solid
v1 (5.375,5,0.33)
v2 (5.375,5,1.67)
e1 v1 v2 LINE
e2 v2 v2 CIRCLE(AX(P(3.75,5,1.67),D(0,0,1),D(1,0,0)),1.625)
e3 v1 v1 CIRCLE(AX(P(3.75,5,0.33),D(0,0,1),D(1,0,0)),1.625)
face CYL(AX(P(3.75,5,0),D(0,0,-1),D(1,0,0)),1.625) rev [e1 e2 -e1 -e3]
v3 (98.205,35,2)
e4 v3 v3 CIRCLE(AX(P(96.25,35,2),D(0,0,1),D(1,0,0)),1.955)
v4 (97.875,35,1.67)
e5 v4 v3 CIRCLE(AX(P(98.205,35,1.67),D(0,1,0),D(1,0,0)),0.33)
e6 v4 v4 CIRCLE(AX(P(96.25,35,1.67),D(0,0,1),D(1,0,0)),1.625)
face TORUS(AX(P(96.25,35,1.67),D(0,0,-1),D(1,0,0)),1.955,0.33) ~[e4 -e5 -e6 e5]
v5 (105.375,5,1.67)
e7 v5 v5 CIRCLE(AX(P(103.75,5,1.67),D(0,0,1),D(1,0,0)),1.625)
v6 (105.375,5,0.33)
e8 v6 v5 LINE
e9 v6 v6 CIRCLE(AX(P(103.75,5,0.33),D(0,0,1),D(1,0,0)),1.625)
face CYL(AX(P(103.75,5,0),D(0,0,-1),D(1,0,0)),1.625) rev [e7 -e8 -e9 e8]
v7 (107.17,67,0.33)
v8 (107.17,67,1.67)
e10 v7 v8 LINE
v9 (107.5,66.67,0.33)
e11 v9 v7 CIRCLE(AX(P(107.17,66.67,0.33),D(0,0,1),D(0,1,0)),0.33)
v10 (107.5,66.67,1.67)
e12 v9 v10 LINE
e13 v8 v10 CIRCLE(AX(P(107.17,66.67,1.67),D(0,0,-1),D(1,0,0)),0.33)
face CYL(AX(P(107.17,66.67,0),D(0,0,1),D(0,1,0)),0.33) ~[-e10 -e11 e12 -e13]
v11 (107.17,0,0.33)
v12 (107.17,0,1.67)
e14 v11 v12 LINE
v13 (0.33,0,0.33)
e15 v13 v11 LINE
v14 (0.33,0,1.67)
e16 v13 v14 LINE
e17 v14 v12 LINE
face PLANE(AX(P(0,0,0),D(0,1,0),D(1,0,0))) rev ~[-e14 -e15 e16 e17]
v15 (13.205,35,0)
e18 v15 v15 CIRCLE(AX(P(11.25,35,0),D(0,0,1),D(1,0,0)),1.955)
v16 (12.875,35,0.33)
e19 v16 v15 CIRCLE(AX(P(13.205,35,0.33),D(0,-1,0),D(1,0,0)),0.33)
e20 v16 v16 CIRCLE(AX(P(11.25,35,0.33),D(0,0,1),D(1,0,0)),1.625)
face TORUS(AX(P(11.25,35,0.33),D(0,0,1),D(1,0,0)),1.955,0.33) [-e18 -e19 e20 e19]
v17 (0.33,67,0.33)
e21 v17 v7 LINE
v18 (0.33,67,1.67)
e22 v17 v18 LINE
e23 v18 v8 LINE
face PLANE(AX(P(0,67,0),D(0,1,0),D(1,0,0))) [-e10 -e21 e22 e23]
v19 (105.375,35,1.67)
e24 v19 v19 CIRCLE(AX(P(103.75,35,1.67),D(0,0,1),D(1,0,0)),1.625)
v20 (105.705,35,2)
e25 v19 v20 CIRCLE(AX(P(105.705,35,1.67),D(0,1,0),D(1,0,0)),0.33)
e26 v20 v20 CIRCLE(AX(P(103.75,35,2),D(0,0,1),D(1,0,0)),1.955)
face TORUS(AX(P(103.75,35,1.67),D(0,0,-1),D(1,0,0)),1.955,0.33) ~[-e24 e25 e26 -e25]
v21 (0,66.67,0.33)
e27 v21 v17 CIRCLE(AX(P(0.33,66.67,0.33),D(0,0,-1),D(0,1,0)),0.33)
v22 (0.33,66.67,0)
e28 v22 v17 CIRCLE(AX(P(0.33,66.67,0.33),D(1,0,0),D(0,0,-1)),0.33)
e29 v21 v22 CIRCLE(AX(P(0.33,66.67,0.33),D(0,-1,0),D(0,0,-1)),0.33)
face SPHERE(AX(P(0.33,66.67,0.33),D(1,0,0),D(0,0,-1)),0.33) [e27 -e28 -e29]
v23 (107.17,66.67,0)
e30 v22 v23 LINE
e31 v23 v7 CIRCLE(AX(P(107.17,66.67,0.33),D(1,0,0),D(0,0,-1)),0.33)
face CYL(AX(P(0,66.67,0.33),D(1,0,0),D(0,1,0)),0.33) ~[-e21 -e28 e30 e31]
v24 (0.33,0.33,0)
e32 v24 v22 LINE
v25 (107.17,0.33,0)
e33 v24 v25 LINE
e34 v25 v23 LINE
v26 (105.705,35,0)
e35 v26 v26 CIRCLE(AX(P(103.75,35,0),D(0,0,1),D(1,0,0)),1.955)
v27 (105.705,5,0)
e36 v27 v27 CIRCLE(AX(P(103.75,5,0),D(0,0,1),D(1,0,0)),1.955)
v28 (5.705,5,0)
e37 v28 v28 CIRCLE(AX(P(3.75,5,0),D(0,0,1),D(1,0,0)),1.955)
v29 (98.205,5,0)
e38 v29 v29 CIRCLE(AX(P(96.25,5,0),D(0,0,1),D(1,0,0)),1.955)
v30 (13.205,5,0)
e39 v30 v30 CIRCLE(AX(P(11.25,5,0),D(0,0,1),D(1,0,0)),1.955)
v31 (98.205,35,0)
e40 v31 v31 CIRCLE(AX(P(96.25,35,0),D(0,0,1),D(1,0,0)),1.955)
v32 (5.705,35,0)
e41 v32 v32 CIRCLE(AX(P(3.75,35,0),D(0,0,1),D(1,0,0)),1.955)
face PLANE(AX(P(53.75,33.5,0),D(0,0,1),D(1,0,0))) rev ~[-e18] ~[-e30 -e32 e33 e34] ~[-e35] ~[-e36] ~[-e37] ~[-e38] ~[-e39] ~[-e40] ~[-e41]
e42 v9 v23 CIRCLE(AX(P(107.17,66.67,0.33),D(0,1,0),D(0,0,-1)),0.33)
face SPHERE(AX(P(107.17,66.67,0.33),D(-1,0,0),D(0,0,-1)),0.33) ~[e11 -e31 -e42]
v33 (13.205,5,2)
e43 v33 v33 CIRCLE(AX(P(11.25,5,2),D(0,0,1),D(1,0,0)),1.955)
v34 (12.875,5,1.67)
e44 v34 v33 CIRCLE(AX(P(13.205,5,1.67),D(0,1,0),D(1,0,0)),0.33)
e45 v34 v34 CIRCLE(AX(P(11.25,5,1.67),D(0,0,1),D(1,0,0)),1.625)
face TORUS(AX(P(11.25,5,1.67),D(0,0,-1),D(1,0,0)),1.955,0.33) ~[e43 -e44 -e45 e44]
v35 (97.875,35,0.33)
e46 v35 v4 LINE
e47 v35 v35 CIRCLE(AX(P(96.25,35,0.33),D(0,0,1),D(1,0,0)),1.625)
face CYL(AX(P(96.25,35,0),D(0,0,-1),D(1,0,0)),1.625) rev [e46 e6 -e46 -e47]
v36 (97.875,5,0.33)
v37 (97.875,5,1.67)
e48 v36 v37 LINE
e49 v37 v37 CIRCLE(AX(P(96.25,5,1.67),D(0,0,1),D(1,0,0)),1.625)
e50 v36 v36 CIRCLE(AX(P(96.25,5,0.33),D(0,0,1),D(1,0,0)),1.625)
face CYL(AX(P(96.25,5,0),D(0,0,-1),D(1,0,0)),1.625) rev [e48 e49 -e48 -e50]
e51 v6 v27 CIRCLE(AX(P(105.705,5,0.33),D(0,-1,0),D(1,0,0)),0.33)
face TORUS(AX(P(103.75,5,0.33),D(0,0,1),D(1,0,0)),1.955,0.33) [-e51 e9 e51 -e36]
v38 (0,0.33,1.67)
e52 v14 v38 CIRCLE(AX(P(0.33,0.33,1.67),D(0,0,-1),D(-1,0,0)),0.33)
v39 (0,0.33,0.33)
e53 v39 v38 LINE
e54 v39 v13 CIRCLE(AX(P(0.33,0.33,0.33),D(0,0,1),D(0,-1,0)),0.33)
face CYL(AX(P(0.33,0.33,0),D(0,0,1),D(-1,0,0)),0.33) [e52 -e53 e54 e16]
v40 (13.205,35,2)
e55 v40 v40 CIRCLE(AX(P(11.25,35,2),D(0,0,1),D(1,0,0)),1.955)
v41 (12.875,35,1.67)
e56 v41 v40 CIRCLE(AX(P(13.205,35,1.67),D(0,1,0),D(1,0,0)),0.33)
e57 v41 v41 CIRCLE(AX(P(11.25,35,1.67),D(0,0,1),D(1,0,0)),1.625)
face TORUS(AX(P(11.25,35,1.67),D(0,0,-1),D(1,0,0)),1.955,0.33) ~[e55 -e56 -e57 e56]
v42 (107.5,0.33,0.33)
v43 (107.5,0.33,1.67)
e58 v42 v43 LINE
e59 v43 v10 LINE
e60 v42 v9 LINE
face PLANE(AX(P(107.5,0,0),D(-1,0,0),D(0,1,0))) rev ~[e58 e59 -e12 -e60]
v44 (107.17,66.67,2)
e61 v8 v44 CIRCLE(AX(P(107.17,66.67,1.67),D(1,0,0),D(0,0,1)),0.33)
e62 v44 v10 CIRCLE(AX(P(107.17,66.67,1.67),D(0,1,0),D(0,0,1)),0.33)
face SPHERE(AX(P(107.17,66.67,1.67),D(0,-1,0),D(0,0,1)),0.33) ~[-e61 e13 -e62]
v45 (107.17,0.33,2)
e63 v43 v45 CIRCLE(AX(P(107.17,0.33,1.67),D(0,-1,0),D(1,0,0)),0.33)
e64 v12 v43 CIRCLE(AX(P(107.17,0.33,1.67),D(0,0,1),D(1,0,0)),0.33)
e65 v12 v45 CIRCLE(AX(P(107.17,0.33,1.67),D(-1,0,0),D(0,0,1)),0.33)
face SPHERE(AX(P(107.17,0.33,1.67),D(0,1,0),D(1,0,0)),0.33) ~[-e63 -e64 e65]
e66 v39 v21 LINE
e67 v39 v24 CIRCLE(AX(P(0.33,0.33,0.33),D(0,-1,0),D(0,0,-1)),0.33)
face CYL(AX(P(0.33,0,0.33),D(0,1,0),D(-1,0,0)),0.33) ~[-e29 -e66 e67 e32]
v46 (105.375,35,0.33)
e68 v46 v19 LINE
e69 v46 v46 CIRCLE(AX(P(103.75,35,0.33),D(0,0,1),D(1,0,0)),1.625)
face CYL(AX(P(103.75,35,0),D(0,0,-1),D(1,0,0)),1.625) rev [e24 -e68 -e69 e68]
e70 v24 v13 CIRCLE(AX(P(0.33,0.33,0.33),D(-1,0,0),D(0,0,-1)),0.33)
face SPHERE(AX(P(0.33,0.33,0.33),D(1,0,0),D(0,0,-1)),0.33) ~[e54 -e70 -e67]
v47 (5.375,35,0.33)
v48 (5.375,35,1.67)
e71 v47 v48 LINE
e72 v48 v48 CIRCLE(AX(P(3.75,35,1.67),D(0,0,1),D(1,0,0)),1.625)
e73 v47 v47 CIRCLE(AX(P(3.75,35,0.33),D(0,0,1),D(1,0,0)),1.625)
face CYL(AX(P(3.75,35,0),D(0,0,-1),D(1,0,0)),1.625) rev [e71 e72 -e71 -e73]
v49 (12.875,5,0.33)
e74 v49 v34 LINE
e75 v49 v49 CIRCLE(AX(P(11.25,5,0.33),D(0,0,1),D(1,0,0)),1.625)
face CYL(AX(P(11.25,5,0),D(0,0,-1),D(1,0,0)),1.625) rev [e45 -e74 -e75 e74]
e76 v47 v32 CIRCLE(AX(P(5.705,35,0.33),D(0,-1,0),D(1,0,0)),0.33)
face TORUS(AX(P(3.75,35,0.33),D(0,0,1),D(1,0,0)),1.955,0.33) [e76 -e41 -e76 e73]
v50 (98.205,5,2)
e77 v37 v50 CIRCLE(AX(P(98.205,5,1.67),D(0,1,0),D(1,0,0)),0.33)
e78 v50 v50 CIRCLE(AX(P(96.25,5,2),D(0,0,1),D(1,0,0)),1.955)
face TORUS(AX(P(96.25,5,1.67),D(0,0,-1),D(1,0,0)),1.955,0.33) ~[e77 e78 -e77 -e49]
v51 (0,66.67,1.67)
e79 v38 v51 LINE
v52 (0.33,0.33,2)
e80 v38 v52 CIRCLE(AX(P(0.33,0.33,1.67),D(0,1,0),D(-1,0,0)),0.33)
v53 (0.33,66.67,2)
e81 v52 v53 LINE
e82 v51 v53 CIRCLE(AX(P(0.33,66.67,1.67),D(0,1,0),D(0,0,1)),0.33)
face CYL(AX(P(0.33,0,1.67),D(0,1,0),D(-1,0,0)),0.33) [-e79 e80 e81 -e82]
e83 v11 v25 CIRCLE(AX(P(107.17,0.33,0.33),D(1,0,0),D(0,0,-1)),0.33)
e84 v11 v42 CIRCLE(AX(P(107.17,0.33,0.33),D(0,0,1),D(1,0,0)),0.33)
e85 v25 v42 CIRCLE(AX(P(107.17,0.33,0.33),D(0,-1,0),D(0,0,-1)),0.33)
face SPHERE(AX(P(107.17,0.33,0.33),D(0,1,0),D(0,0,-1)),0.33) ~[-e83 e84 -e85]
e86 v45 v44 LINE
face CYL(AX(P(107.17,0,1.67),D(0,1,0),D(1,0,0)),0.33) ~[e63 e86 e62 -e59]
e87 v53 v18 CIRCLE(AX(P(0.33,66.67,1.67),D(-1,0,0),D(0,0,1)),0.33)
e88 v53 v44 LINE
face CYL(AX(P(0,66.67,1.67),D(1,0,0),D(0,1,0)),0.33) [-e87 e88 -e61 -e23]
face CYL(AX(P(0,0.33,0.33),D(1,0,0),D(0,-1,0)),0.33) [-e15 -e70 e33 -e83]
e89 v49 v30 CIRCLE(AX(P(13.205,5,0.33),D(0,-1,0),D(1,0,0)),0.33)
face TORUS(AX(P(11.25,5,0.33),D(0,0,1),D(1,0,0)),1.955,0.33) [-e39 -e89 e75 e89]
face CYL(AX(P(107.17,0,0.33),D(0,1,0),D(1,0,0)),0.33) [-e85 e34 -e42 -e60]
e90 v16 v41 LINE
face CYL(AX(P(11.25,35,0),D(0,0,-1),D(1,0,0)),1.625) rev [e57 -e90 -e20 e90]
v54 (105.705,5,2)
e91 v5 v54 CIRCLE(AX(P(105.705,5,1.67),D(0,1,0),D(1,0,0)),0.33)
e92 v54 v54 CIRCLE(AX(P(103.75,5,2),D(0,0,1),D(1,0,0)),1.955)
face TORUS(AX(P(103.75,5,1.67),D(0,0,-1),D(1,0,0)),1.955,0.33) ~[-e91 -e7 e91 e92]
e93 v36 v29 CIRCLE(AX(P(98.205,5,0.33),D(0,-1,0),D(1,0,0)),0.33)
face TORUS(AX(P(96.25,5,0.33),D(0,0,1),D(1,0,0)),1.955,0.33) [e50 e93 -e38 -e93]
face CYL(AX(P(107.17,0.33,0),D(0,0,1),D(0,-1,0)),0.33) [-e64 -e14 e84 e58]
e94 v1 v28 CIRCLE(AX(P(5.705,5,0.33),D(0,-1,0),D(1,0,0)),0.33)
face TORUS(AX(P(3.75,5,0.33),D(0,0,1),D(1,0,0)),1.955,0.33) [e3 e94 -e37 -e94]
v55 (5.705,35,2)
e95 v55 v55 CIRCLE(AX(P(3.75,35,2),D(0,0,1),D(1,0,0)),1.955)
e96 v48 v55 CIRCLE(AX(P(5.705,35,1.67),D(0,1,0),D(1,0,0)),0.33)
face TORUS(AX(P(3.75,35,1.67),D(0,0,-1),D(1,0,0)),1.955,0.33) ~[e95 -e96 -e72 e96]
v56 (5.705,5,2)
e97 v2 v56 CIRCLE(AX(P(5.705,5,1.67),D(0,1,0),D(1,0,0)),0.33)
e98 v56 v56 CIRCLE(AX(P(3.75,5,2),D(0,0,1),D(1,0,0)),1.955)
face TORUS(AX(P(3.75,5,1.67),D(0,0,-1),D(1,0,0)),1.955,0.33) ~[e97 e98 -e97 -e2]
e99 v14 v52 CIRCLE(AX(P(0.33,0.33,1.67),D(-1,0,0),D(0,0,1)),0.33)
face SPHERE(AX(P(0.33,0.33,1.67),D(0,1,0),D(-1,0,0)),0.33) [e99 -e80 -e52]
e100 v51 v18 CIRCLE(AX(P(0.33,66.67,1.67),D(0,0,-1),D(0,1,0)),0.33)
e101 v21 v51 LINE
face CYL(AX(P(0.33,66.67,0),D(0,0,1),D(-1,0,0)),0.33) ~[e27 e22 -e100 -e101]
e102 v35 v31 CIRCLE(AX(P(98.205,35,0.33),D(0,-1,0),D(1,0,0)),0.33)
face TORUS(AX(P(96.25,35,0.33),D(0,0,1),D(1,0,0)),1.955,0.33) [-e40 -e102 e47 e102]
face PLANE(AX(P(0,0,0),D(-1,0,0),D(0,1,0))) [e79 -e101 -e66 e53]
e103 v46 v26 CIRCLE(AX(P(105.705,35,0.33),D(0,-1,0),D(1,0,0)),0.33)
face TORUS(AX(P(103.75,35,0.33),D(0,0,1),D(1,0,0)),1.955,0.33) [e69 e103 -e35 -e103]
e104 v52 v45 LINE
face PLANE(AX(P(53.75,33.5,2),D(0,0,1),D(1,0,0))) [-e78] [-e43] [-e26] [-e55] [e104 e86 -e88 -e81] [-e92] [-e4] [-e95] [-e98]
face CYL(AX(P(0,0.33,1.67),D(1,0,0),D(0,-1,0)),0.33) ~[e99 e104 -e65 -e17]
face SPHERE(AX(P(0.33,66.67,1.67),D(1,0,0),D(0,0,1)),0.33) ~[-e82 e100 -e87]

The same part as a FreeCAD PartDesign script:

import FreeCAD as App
import Part
import Sketcher
Q = App.Units.Quantity


def add_polygon(sketch, points):
    """Adds a closed chain of lines whose ends are joined by coincident constraints."""
    first, n = sketch.GeometryCount, len(points)
    for a, b in zip(points, points[1:] + points[:1]):
        sketch.addGeometry(Part.LineSegment(App.Vector(*a, 0), App.Vector(*b, 0)), False)
    for i in range(n):
        sketch.addConstraint(Sketcher.Constraint("Coincident", first + i, 2, first + (i + 1) % n, 1))

doc = App.newDocument("Part")
body = doc.addObject("PartDesign::Body", "Body")

# Sketch on XY plane
sketch1 = doc.addObject("Sketcher::SketchObject", "Sketch")
body.addObject(sketch1)
sketch1.AttachmentSupport = (doc.XY_Plane, [""])
sketch1.MapMode = "FlatFace"
add_polygon(sketch1, [(0, 67), (0, 0), (107.5, 0), (107.5, 67)])  # lines 0-3
sketch1.addGeometry(Part.Circle(App.Vector(3.8, 5, 0), App.Vector(0, 0, 1), 1.6), False)  # 4
sketch1.addGeometry(Part.Circle(App.Vector(11.2, 5, 0), App.Vector(0, 0, 1), 1.6), False)  # 5
sketch1.addGeometry(Part.Circle(App.Vector(96.2, 5, 0), App.Vector(0, 0, 1), 1.6), False)  # 6
sketch1.addGeometry(Part.Circle(App.Vector(103.8, 5, 0), App.Vector(0, 0, 1), 1.6), False)  # 7
sketch1.addGeometry(Part.Circle(App.Vector(3.8, 35, 0), App.Vector(0, 0, 1), 1.6), False)  # 8
sketch1.addGeometry(Part.Circle(App.Vector(11.2, 35, 0), App.Vector(0, 0, 1), 1.6), False)  # 9
sketch1.addGeometry(Part.Circle(App.Vector(96.2, 35, 0), App.Vector(0, 0, 1), 1.6), False)  # 10
sketch1.addGeometry(Part.Circle(App.Vector(103.8, 35, 0), App.Vector(0, 0, 1), 1.6), False)  # 11
sketch1.addConstraint(Sketcher.Constraint("Vertical", 0))
sketch1.addConstraint(Sketcher.Constraint("Horizontal", 1))
sketch1.addConstraint(Sketcher.Constraint("Vertical", 2))
sketch1.addConstraint(Sketcher.Constraint("Horizontal", 3))
sketch1.addConstraint(Sketcher.Constraint("Coincident", 0, 2, -1, 1))
sketch1.addConstraint(Sketcher.Constraint("Equal", 4, 5))
sketch1.addConstraint(Sketcher.Constraint("Equal", 5, 6))
sketch1.addConstraint(Sketcher.Constraint("Equal", 6, 7))
sketch1.addConstraint(Sketcher.Constraint("Equal", 7, 8))
sketch1.addConstraint(Sketcher.Constraint("Equal", 8, 9))
sketch1.addConstraint(Sketcher.Constraint("Equal", 9, 10))
sketch1.addConstraint(Sketcher.Constraint("Equal", 10, 11))
sketch1.addConstraint(Sketcher.Constraint("Horizontal", 4, 3, 5, 3))
sketch1.addConstraint(Sketcher.Constraint("Horizontal", 5, 3, 6, 3))
sketch1.addConstraint(Sketcher.Constraint("Horizontal", 6, 3, 7, 3))
sketch1.addConstraint(Sketcher.Constraint("Horizontal", 8, 3, 9, 3))
sketch1.addConstraint(Sketcher.Constraint("Horizontal", 9, 3, 10, 3))
sketch1.addConstraint(Sketcher.Constraint("Horizontal", 10, 3, 11, 3))
sketch1.addConstraint(Sketcher.Constraint("Vertical", 4, 3, 8, 3))
sketch1.addConstraint(Sketcher.Constraint("Vertical", 5, 3, 9, 3))
sketch1.addConstraint(Sketcher.Constraint("Vertical", 6, 3, 10, 3))
sketch1.addConstraint(Sketcher.Constraint("Vertical", 7, 3, 11, 3))
sketch1.addConstraint(Sketcher.Constraint("Diameter", 4, Q("3.25 mm")))
sketch1.addConstraint(Sketcher.Constraint("DistanceY", 0, 2, 0, 1, Q("67 mm")))
sketch1.addConstraint(Sketcher.Constraint("DistanceX", 1, 1, 1, 2, Q("107.5 mm")))
sketch1.addConstraint(Sketcher.Constraint("DistanceY", -1, 1, 4, 3, Q("5 mm")))
sketch1.addConstraint(Sketcher.Constraint("DistanceY", -1, 1, 8, 3, Q("35 mm")))
sketch1.addConstraint(Sketcher.Constraint("DistanceX", 5, 3, 6, 3, Q("85 mm")))
sketch1.addConstraint(Sketcher.Constraint("DistanceX", 4, 3, 7, 3, Q("100 mm")))
sketch1.addConstraint(Sketcher.Constraint("DistanceX", 4, 3, 5, 3, Q("7.5 mm")))
sketch1.addConstraint(Sketcher.Constraint("DistanceX", -1, 1, 4, 3, Q("3.75 mm")))
pad1 = doc.addObject("PartDesign::Pad", "Pad")
body.addObject(pad1)
pad1.Profile = sketch1
pad1.Length = 2
doc.recompute()

fillet = doc.addObject("PartDesign::Fillet", "Fillet")
body.addObject(fillet)
fillet.Base = (pad1, ["Edge1"])
fillet.UseAllEdges = True
fillet.Radius = 0.33

doc.recompute()
